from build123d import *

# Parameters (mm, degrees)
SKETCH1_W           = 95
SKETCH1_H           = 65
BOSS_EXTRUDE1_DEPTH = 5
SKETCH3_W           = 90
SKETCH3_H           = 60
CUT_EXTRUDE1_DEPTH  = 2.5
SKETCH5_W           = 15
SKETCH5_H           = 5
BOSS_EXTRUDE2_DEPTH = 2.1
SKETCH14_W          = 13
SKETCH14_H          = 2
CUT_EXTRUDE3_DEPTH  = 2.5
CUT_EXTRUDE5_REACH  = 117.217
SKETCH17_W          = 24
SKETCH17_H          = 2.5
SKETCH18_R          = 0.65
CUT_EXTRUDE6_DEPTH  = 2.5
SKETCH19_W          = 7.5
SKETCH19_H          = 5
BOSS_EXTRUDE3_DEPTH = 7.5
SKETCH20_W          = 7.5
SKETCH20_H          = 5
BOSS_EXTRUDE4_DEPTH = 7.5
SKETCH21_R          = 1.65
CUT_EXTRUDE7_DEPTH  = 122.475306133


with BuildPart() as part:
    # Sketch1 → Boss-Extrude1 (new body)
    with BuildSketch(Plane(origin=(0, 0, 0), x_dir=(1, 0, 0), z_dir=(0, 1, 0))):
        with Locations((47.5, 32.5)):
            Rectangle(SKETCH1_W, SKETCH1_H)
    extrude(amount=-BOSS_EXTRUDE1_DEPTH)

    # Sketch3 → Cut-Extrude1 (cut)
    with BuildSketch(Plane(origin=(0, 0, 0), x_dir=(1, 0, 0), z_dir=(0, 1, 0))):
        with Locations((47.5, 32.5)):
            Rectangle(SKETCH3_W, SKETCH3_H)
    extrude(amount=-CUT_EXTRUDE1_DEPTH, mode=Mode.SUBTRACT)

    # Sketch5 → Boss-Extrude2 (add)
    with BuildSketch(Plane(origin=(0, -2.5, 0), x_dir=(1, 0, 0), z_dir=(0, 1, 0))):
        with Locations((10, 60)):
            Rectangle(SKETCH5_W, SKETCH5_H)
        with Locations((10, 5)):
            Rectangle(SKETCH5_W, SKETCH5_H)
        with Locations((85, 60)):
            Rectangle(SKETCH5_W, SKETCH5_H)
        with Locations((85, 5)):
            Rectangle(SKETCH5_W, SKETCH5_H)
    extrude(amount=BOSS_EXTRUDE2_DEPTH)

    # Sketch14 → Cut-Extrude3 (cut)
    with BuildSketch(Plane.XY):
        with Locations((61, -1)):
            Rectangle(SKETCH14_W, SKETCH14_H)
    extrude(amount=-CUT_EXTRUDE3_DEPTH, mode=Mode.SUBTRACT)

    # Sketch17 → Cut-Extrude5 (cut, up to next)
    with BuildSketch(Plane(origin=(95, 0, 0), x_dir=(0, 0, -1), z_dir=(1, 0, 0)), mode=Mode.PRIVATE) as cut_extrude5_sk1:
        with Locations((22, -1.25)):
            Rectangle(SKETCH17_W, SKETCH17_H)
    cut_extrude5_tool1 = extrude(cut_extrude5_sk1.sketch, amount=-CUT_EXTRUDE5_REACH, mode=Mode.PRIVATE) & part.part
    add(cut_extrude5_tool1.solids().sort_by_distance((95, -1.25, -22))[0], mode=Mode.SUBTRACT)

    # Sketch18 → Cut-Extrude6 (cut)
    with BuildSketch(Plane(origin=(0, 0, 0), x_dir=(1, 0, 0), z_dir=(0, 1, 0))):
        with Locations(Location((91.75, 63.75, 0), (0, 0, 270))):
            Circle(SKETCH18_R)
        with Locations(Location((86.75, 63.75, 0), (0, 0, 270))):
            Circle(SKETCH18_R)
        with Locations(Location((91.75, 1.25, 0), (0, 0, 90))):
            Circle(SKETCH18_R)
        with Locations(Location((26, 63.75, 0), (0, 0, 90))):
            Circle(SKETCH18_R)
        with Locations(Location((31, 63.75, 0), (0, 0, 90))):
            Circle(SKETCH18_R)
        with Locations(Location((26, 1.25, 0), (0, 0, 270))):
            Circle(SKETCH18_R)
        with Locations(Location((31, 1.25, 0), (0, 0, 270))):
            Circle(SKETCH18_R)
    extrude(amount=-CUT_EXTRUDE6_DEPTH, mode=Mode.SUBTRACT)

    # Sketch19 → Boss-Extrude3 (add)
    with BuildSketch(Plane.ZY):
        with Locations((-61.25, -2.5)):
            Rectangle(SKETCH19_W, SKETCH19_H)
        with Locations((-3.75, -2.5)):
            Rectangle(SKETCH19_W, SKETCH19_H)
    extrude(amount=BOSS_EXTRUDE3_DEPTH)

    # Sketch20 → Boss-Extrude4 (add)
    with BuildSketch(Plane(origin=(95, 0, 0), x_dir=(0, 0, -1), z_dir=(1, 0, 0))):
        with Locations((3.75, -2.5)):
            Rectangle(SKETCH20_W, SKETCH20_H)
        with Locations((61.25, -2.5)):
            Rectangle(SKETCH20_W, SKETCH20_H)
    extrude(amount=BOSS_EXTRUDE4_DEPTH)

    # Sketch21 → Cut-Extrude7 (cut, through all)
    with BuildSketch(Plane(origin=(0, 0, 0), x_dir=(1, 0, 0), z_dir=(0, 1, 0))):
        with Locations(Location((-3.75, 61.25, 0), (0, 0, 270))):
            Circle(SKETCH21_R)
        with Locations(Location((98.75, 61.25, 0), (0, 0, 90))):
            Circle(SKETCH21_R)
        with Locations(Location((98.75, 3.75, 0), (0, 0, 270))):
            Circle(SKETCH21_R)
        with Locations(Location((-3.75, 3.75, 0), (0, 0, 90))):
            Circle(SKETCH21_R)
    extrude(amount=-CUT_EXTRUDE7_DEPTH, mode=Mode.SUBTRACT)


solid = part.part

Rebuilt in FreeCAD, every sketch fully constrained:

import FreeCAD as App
import Part
import Sketcher

V = App.Vector
Q = App.Units.Quantity


def add_polygon(sketch, points):
    """Adds a closed chain of lines whose ends are joined by coincident constraints."""
    first, n = sketch.GeometryCount, len(points)
    for a, b in zip(points, points[1:] + points[:1]):
        sketch.addGeometry(Part.LineSegment(App.Vector(*a, 0), App.Vector(*b, 0)), False)
    for i in range(n):
        sketch.addConstraint(Sketcher.Constraint("Coincident", first + i, 2, first + (i + 1) % n, 1))

doc = App.newDocument("Part")
params = doc.addObject("Spreadsheet::Sheet", "Params")
for row, (alias, value) in enumerate([
    ("sketch1_width", "95 mm"),
    ("sketch1_height", "65 mm"),
    ("pad1_length", "5 mm"),
    ("sketch2_width", "90 mm"),
    ("sketch2_height", "60 mm"),
    ("pocket1_length", "2.5 mm"),
    ("sketch3_width", "15 mm"),
    ("sketch3_height", "5 mm"),
    ("pad2_length", "2.1 mm"),
    ("sketch4_width", "13 mm"),
    ("sketch4_height", "2 mm"),
    ("pocket2_length", "2.5 mm"),
    ("sketch5_height", "24 mm"),
    ("sketch5_width", "2.5 mm"),
    ("sketch6_diameter", "1.3 mm"),
    ("pocket4_length", "2.5 mm"),
    ("sketch7_width", "5 mm"),
    ("sketch7_height", "7.5 mm"),
    ("pad3_length", "7.5 mm"),
    ("sketch8_width", "5 mm"),
    ("sketch8_height", "7.5 mm"),
    ("pad4_length", "7.5 mm"),
    ("sketch9_diameter", "3.3 mm"),
], start=1):
    params.set(f"A{row}", alias)
    params.set(f"B{row}", "=" + value)
    params.setAlias(f"B{row}", alias)

body = doc.addObject("PartDesign::Body", "Body")

# Sketch on XZ plane
sketch1 = body.newObject("Sketcher::SketchObject", "Sketch")
sketch1.AttachmentSupport = (doc.getObject("XZ_Plane"), [""])
sketch1.MapMode = "FlatFace"
add_polygon(sketch1, [(0, -65), (0, 0), (95, 0), (95, -65)])  # lines 0-3
sketch1.addConstraint([
    Sketcher.Constraint("Vertical", 0),
    Sketcher.Constraint("Horizontal", 1),
    Sketcher.Constraint("Vertical", 2),
    Sketcher.Constraint("Horizontal", 3),
    Sketcher.Constraint("Coincident", 0, 2, -1, 1),
    Sketcher.Constraint("DistanceX", 1, 1, 1, 2, Q("95 mm")),
    Sketcher.Constraint("DistanceY", 0, 1, 0, 2, Q("65 mm")),
])
sketch1.setExpression("Constraints[9]", "Params.sketch1_width")
sketch1.setExpression("Constraints[10]", "Params.sketch1_height")
pad1 = body.newObject("PartDesign::Pad", "Pad")
pad1.Profile = sketch1
pad1.setExpression("Length", "Params.pad1_length")

# Sketch on XZ plane
sketch2 = body.newObject("Sketcher::SketchObject", "Sketch001")
sketch2.AttachmentSupport = (doc.getObject("XZ_Plane"), [""])
sketch2.MapMode = "FlatFace"
add_polygon(sketch2, [(2, -62), (2, -2), (92, -2), (92, -62)])  # lines 0-3
sketch2.addConstraint([
    Sketcher.Constraint("Vertical", 0),
    Sketcher.Constraint("Horizontal", 1),
    Sketcher.Constraint("Vertical", 2),
    Sketcher.Constraint("Horizontal", 3),
    Sketcher.Constraint("DistanceX", 1, 1, 1, 2, Q("90 mm")),
    Sketcher.Constraint("DistanceY", 0, 1, 0, 2, Q("60 mm")),
    Sketcher.Constraint("DistanceX", -1, 1, 0, 2, Q("2.5 mm")),
    Sketcher.Constraint("DistanceY", 0, 2, -1, 1, Q("2.5 mm")),
])
sketch2.setExpression("Constraints[8]", "Params.sketch2_width")
sketch2.setExpression("Constraints[9]", "Params.sketch2_height")
pocket1 = body.newObject("PartDesign::Pocket", "Pocket")
pocket1.Profile = sketch2
pocket1.setExpression("Length", "Params.pocket1_length")
pocket1.Reversed = True

# Sketch on XZ plane
sketch3 = body.newObject("Sketcher::SketchObject", "Sketch002")
sketch3.AttachmentSupport = (doc.getObject("XZ_Plane"), [""])
sketch3.MapMode = "FlatFace"
sketch3.AttachmentOffset = App.Placement(V(0, 0, 2.5), App.Rotation())
add_polygon(sketch3, [(2, -62), (2, -58), (18, -58), (18, -62)])  # lines 0-3
add_polygon(sketch3, [(2, -8), (2, -2), (18, -2), (18, -8)])  # lines 4-7
add_polygon(sketch3, [(78, -62), (78, -58), (92, -58), (92, -62)])  # lines 8-11
add_polygon(sketch3, [(78, -8), (78, -2), (92, -2), (92, -8)])  # lines 12-15
sketch3.addConstraint([
    Sketcher.Constraint("Vertical", 0),
    Sketcher.Constraint("Horizontal", 1),
    Sketcher.Constraint("Vertical", 2),
    Sketcher.Constraint("Horizontal", 3),
    Sketcher.Constraint("Vertical", 4),
    Sketcher.Constraint("Horizontal", 5),
    Sketcher.Constraint("Vertical", 6),
    Sketcher.Constraint("Horizontal", 7),
    Sketcher.Constraint("Vertical", 8),
    Sketcher.Constraint("Horizontal", 9),
    Sketcher.Constraint("Vertical", 10),
    Sketcher.Constraint("Horizontal", 11),
    Sketcher.Constraint("Vertical", 12),
    Sketcher.Constraint("Horizontal", 13),
    Sketcher.Constraint("Vertical", 14),
    Sketcher.Constraint("Horizontal", 15),
    Sketcher.Constraint("Horizontal", 1, 2, 8, 2),
    Sketcher.Constraint("Horizontal", 3, 2, 10, 2),
    Sketcher.Constraint("Horizontal", 5, 2, 12, 2),
    Sketcher.Constraint("Horizontal", 7, 2, 14, 2),
    Sketcher.Constraint("Vertical", 3, 2, 4, 2),
    Sketcher.Constraint("Vertical", 2, 2, 5, 2),
    Sketcher.Constraint("Vertical", 11, 2, 12, 2),
    Sketcher.Constraint("Vertical", 10, 2, 13, 2),
    Sketcher.Constraint("Equal", 7, 9),
    Sketcher.Constraint("Equal", 2, 4),
    Sketcher.Constraint("DistanceX", 1, 1, 1, 2, Q("15 mm")),
    Sketcher.Constraint("DistanceY", 0, 1, 0, 2, Q("5 mm")),
    Sketcher.Constraint("DistanceY", 0, 2, 4, 2, Q("55 mm")),
    Sketcher.Constraint("DistanceX", 1, 2, 8, 2, Q("60 mm")),
    Sketcher.Constraint("DistanceX", -1, 1, 0, 2, Q("2.5 mm")),
    Sketcher.Constraint("DistanceY", 0, 2, -1, 1, Q("57.5 mm")),
])
sketch3.setExpression("Constraints[42]", "Params.sketch3_width")
sketch3.setExpression("Constraints[43]", "Params.sketch3_height")
pad2 = body.newObject("PartDesign::Pad", "Pad001")
pad2.Profile = sketch3
pad2.setExpression("Length", "Params.pad2_length")
pad2.Reversed = True

# Sketch on XY plane
sketch4 = body.newObject("Sketcher::SketchObject", "Sketch003")
sketch4.AttachmentSupport = (doc.getObject("XY_Plane"), [""])
sketch4.MapMode = "FlatFace"
add_polygon(sketch4, [(54.5, 0), (54.5, -2), (67.5, -2), (67.5, 0)])  # lines 0-3
sketch4.addConstraint([
    Sketcher.Constraint("Vertical", 0),
    Sketcher.Constraint("Horizontal", 1),
    Sketcher.Constraint("Vertical", 2),
    Sketcher.Constraint("Horizontal", 3),
    Sketcher.Constraint("PointOnObject", 2, 2, -1),
    Sketcher.Constraint("DistanceX", 1, 1, 1, 2, Q("13 mm")),
    Sketcher.Constraint("DistanceY", 0, 2, 0, 1, Q("2 mm")),
    Sketcher.Constraint("DistanceX", -1, 1, 0, 2, Q("54.5 mm")),
])
sketch4.setExpression("Constraints[9]", "Params.sketch4_width")
sketch4.setExpression("Constraints[10]", "Params.sketch4_height")
pocket2 = body.newObject("PartDesign::Pocket", "Pocket001")
pocket2.Profile = sketch4
pocket2.setExpression("Length", "Params.pocket2_length")

# Sketch on YZ plane
sketch5 = body.newObject("Sketcher::SketchObject", "Sketch004")
sketch5.AttachmentSupport = (doc.getObject("YZ_Plane"), [""])
sketch5.MapMode = "FlatFace"
sketch5.AttachmentOffset = App.Placement(V(0, 0, 95), App.Rotation())
add_polygon(sketch5, [(0, -10), (-2.5, -10), (-2.5, -34), (0, -34)])  # lines 0-3
sketch5.addConstraint([
    Sketcher.Constraint("Horizontal", 0),
    Sketcher.Constraint("Vertical", 1),
    Sketcher.Constraint("Horizontal", 2),
    Sketcher.Constraint("Vertical", 3),
    Sketcher.Constraint("PointOnObject", 2, 2, -2),
    Sketcher.Constraint("DistanceY", 1, 2, 1, 1, Q("24 mm")),
    Sketcher.Constraint("DistanceX", 0, 2, 0, 1, Q("2.5 mm")),
    Sketcher.Constraint("DistanceY", 0, 2, -1, 1, Q("10 mm")),
])
sketch5.setExpression("Constraints[9]", "Params.sketch5_height")
sketch5.setExpression("Constraints[10]", "Params.sketch5_width")
pocket3 = body.newObject("PartDesign::Pocket", "Pocket002")
pocket3.Profile = sketch5
pocket3.Type = "UpToFirst"

# Sketch on XZ plane
sketch6 = body.newObject("Sketcher::SketchObject", "Sketch005")
sketch6.AttachmentSupport = (doc.getObject("XZ_Plane"), [""])
sketch6.MapMode = "FlatFace"
sketch6.addGeometry([
    Part.Circle(V(91.8, -63.8, 0), V(0, 0, 1), 0.7),  # 0
    Part.Circle(V(86.8, -63.8, 0), V(0, 0, 1), 0.7),  # 1
    Part.Circle(V(91.8, -1.2, 0), V(0, 0, 1), 0.7),  # 2
    Part.Circle(V(26, -63.8, 0), V(0, 0, 1), 0.7),  # 3
    Part.Circle(V(31, -63.8, 0), V(0, 0, 1), 0.7),  # 4
    Part.Circle(V(26, -1.2, 0), V(0, 0, 1), 0.7),  # 5
    Part.Circle(V(31, -1.2, 0), V(0, 0, 1), 0.7),  # 6
], False)
sketch6.addConstraint([
    Sketcher.Constraint("Equal", 0, 1),
    Sketcher.Constraint("Equal", 1, 2),
    Sketcher.Constraint("Equal", 2, 3),
    Sketcher.Constraint("Equal", 3, 4),
    Sketcher.Constraint("Equal", 4, 5),
    Sketcher.Constraint("Equal", 5, 6),
    Sketcher.Constraint("Horizontal", 0, 3, 1, 3),
    Sketcher.Constraint("Horizontal", 1, 3, 3, 3),
    Sketcher.Constraint("Horizontal", 3, 3, 4, 3),
    Sketcher.Constraint("Horizontal", 2, 3, 5, 3),
    Sketcher.Constraint("Horizontal", 5, 3, 6, 3),
    Sketcher.Constraint("Vertical", 0, 3, 2, 3),
    Sketcher.Constraint("Vertical", 3, 3, 5, 3),
    Sketcher.Constraint("Vertical", 4, 3, 6, 3),
    Sketcher.Constraint("Diameter", 0, Q("1.3 mm")),
    Sketcher.Constraint("DistanceX", -1, 1, 3, 3, Q("26 mm")),
    Sketcher.Constraint("DistanceX", -1, 1, 4, 3, Q("31 mm")),
    Sketcher.Constraint("DistanceX", 1, 3, 0, 3, Q("5 mm")),
    Sketcher.Constraint("DistanceY", 0, 3, 2, 3, Q("62.5 mm")),
    Sketcher.Constraint("DistanceX", -1, 1, 0, 3, Q("91.75 mm")),
    Sketcher.Constraint("DistanceY", 0, 3, -1, 1, Q("63.75 mm")),
])
sketch6.setExpression("Constraints[14]", "Params.sketch6_diameter")
pocket4 = body.newObject("PartDesign::Pocket", "Pocket003")
pocket4.Profile = sketch6
pocket4.setExpression("Length", "Params.pocket4_length")
pocket4.Reversed = True

# Sketch on YZ plane
sketch7 = body.newObject("Sketcher::SketchObject", "Sketch006")
sketch7.AttachmentSupport = (doc.getObject("YZ_Plane"), [""])
sketch7.MapMode = "FlatFace"
add_polygon(sketch7, [(0, -65), (-5, -65), (-5, -58), (0, -58)])  # lines 0-3
add_polygon(sketch7, [(0, -8), (-5, -8), (-5, 0), (0, 0)])  # lines 4-7
sketch7.addConstraint([
    Sketcher.Constraint("Horizontal", 0),
    Sketcher.Constraint("Vertical", 1),
    Sketcher.Constraint("Horizontal", 2),
    Sketcher.Constraint("Vertical", 3),
    Sketcher.Constraint("Horizontal", 4),
    Sketcher.Constraint("Vertical", 5),
    Sketcher.Constraint("Horizontal", 6),
    Sketcher.Constraint("Vertical", 7),
    Sketcher.Constraint("Coincident", 6, 2, -1, 1),
    Sketcher.Constraint("PointOnObject", 2, 2, -2),
    Sketcher.Constraint("Vertical", 1, 2, 4, 2),
    Sketcher.Constraint("Equal", 3, 5),
    Sketcher.Constraint("DistanceX", 0, 2, 0, 1, Q("5 mm")),
    Sketcher.Constraint("DistanceY", 1, 1, 1, 2, Q("7.5 mm")),
    Sketcher.Constraint("DistanceY", 0, 2, -1, 1, Q("65 mm")),
])
sketch7.setExpression("Constraints[20]", "Params.sketch7_width")
sketch7.setExpression("Constraints[21]", "Params.sketch7_height")
pad3 = body.newObject("PartDesign::Pad", "Pad002")
pad3.Profile = sketch7
pad3.setExpression("Length", "Params.pad3_length")
pad3.Reversed = True

# Sketch on YZ plane
sketch8 = body.newObject("Sketcher::SketchObject", "Sketch007")
sketch8.AttachmentSupport = (doc.getObject("YZ_Plane"), [""])
sketch8.MapMode = "FlatFace"
sketch8.AttachmentOffset = App.Placement(V(0, 0, 95), App.Rotation())
add_polygon(sketch8, [(0, 0), (-5, 0), (-5, -8), (0, -8)])  # lines 0-3
add_polygon(sketch8, [(0, -58), (-5, -58), (-5, -65), (0, -65)])  # lines 4-7
sketch8.addConstraint([
    Sketcher.Constraint("Horizontal", 0),
    Sketcher.Constraint("Vertical", 1),
    Sketcher.Constraint("Horizontal", 2),
    Sketcher.Constraint("Vertical", 3),
    Sketcher.Constraint("Horizontal", 4),
    Sketcher.Constraint("Vertical", 5),
    Sketcher.Constraint("Horizontal", 6),
    Sketcher.Constraint("Vertical", 7),
    Sketcher.Constraint("Coincident", 3, 2, -1, 1),
    Sketcher.Constraint("PointOnObject", 6, 2, -2),
    Sketcher.Constraint("Vertical", 1, 2, 4, 2),
    Sketcher.Constraint("Equal", 3, 5),
    Sketcher.Constraint("DistanceX", 0, 2, 0, 1, Q("5 mm")),
    Sketcher.Constraint("DistanceY", 1, 2, 1, 1, Q("7.5 mm")),
    Sketcher.Constraint("DistanceY", 5, 2, -1, 1, Q("65 mm")),
])
sketch8.setExpression("Constraints[20]", "Params.sketch8_width")
sketch8.setExpression("Constraints[21]", "Params.sketch8_height")
pad4 = body.newObject("PartDesign::Pad", "Pad003")
pad4.Profile = sketch8
pad4.setExpression("Length", "Params.pad4_length")

# Sketch on XZ plane
sketch9 = body.newObject("Sketcher::SketchObject", "Sketch008")
sketch9.AttachmentSupport = (doc.getObject("XZ_Plane"), [""])
sketch9.MapMode = "FlatFace"
sketch9.addGeometry([
    Part.Circle(V(-3.8, -61.2, 0), V(0, 0, 1), 1.6),
    Part.Circle(V(98.8, -61.2, 0), V(0, 0, 1), 1.6),
    Part.Circle(V(98.8, -3.8, 0), V(0, 0, 1), 1.6),
    Part.Circle(V(-3.8, -3.8, 0), V(0, 0, 1), 1.6),
], False)
sketch9.addConstraint([
    Sketcher.Constraint("Equal", 0, 1),
    Sketcher.Constraint("Equal", 1, 2),
    Sketcher.Constraint("Equal", 2, 3),
    Sketcher.Constraint("Horizontal", 0, 3, 1, 3),
    Sketcher.Constraint("Horizontal", 2, 3, 3, 3),
    Sketcher.Constraint("Vertical", 1, 3, 2, 3),
    Sketcher.Constraint("Vertical", 0, 3, 3, 3),
    Sketcher.Constraint("Diameter", 0, Q("3.3 mm")),
    Sketcher.Constraint("DistanceX", 0, 3, 1, 3, Q("102.5 mm")),
    Sketcher.Constraint("DistanceY", 1, 3, 2, 3, Q("57.5 mm")),
    Sketcher.Constraint("DistanceX", 0, 3, -1, 1, Q("3.75 mm")),
    Sketcher.Constraint("DistanceY", 0, 3, -1, 1, Q("61.25 mm")),
])
sketch9.setExpression("Constraints[7]", "Params.sketch9_diameter")
pocket5 = body.newObject("PartDesign::Pocket", "Pocket004")
pocket5.Profile = sketch9
pocket5.Type = "ThroughAll"
pocket5.Reversed = True

doc.recompute()
